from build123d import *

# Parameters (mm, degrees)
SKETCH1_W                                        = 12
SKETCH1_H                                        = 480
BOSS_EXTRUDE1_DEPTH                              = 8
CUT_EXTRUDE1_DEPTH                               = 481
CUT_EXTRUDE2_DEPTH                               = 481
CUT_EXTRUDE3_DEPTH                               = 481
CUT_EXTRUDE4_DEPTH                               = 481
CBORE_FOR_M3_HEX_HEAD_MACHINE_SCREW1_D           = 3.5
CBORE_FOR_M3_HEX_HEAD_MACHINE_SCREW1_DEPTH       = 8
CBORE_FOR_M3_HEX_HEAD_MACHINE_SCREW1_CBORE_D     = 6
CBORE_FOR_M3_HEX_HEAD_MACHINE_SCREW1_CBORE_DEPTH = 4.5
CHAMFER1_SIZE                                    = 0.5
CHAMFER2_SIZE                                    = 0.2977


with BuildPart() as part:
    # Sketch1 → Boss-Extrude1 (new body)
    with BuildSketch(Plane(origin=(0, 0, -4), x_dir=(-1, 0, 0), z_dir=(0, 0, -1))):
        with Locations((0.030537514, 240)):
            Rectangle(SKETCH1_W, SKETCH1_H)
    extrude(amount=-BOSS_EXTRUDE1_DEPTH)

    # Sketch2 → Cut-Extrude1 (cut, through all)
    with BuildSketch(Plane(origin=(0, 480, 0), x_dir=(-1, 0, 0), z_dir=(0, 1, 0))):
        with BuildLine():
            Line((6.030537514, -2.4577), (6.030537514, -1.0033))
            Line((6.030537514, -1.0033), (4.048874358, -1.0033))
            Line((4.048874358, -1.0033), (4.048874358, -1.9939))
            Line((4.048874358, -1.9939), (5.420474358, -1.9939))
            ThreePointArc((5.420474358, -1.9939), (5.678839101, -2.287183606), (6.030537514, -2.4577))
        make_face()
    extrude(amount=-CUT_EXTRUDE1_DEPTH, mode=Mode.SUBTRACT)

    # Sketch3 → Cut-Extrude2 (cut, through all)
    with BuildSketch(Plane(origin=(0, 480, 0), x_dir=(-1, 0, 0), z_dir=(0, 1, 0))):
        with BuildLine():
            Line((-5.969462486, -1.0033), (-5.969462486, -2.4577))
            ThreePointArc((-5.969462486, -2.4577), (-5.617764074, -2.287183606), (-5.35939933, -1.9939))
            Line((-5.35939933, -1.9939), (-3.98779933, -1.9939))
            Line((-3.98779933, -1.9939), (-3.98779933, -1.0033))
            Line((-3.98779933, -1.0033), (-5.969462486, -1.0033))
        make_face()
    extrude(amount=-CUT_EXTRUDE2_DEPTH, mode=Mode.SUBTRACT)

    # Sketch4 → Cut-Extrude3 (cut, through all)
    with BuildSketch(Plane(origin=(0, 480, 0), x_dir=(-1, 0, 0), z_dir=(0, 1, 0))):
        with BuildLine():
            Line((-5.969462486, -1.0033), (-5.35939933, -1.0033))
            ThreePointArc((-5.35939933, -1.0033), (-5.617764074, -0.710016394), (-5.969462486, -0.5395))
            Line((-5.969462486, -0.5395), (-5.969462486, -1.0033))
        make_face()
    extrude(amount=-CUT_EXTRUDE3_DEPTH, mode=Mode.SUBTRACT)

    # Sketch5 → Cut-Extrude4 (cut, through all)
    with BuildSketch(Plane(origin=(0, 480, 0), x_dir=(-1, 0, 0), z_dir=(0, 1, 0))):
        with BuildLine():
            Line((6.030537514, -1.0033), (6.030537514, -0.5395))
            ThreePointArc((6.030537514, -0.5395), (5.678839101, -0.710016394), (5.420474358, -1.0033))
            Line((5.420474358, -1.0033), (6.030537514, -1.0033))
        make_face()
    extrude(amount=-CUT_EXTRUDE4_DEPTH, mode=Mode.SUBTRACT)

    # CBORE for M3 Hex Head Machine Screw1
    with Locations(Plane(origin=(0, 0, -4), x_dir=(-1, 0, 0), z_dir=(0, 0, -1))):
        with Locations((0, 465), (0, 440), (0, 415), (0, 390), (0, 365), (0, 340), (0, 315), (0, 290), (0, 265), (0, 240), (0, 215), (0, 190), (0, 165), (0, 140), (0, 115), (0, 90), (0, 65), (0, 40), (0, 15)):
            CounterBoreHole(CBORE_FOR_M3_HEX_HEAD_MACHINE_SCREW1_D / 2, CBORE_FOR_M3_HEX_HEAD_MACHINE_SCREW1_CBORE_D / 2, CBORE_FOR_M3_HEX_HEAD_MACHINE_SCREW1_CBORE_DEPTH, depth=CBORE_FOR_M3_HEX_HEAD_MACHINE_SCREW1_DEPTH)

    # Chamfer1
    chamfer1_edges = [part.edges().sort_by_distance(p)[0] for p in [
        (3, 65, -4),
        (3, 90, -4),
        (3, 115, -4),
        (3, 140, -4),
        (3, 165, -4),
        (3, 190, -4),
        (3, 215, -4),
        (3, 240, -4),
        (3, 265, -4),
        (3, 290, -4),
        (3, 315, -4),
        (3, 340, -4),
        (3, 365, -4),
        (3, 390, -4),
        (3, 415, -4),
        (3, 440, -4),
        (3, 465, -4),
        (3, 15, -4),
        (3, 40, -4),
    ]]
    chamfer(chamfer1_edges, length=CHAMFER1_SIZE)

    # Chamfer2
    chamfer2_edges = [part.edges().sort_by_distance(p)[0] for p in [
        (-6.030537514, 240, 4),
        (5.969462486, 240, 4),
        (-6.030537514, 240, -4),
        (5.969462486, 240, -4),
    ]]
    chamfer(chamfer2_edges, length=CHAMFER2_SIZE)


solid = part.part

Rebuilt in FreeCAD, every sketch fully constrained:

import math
import FreeCAD as App
import Part
import Sketcher
from FreeCAD import Vector


def edges_at(feature, points):
    """Names of the edges that pass closest to the given points."""
    edges = feature.Shape.Edges
    near = lambda p: min(range(len(edges)), key=lambda i: edges[i].distToShape(Part.Vertex(*p))[0])
    return sorted({f"Edge{near(p) + 1}" for p in points})

doc = App.newDocument("Part")
body = doc.addObject("PartDesign::Body", "Body")

# Sketch on XY plane
sketch1 = body.newObject("Sketcher::SketchObject", "Sketch")
sketch1.AttachmentSupport = (doc.getObject("XY_Plane"), [""])
sketch1.MapMode = "FlatFace"
sketch1.AttachmentOffset = App.Placement(Vector(0, 0, -4), App.Rotation())
sketch1.addGeometry(Part.LineSegment(Vector(6, 480, 0), Vector(6, 0, 0)), False)
sketch1.addGeometry(Part.LineSegment(Vector(6, 0, 0), Vector(-6, 0, 0)), False)
sketch1.addGeometry(Part.LineSegment(Vector(-6, 0, 0), Vector(-6, 480, 0)), False)
sketch1.addGeometry(Part.LineSegment(Vector(-6, 480, 0), Vector(6, 480, 0)), False)
sketch1.addConstraint(Sketcher.Constraint("Coincident", 0, 2, 1, 1))
sketch1.addConstraint(Sketcher.Constraint("Coincident", 1, 2, 2, 1))
sketch1.addConstraint(Sketcher.Constraint("Coincident", 2, 2, 3, 1))
sketch1.addConstraint(Sketcher.Constraint("Coincident", 3, 2, 0, 1))
sketch1.addConstraint(Sketcher.Constraint("Vertical", 0))
sketch1.addConstraint(Sketcher.Constraint("Horizontal", 1))
sketch1.addConstraint(Sketcher.Constraint("Vertical", 2))
sketch1.addConstraint(Sketcher.Constraint("Horizontal", 3))
sketch1.addConstraint(Sketcher.Constraint("PointOnObject", 0, 2, -1))
sketch1.addConstraint(Sketcher.Constraint("DistanceX", 1, 2, 1, 1, 12.0))
sketch1.addConstraint(Sketcher.Constraint("DistanceY", 0, 2, 0, 1, 480.0))
sketch1.addConstraint(Sketcher.Constraint("DistanceX", -1, 1, 0, 2, 5.969462))
pad1 = body.newObject("PartDesign::Pad", "Pad")
pad1.Profile = sketch1
pad1.Length = 8

# Sketch on XZ plane
sketch2 = body.newObject("Sketcher::SketchObject", "Sketch001")
sketch2.AttachmentSupport = (doc.getObject("XZ_Plane"), [""])
sketch2.MapMode = "FlatFace"
sketch2.AttachmentOffset = App.Placement(Vector(0, 0, -480), App.Rotation())
sketch2.addGeometry(Part.LineSegment(Vector(-6, -2.5, 0), Vector(-6, -1, 0)), False)
sketch2.addGeometry(Part.LineSegment(Vector(-6, -1, 0), Vector(-4, -1, 0)), False)
sketch2.addGeometry(Part.LineSegment(Vector(-4, -1, 0), Vector(-4, -2, 0)), False)
sketch2.addGeometry(Part.LineSegment(Vector(-4, -2, 0), Vector(-5.4, -2, 0)), False)
sketch2.addGeometry(Part.ArcOfCircle(Part.Circle(Vector(-6.3, -1.5, 0), Vector(0, 0, 1), 1), math.radians(-76), math.radians(-30)), False)
sketch2.addConstraint(Sketcher.Constraint("Coincident", 0, 2, 1, 1))
sketch2.addConstraint(Sketcher.Constraint("Coincident", 1, 2, 2, 1))
sketch2.addConstraint(Sketcher.Constraint("Coincident", 2, 2, 3, 1))
sketch2.addConstraint(Sketcher.Constraint("Coincident", 3, 2, 4, 2))
sketch2.addConstraint(Sketcher.Constraint("Coincident", 4, 1, 0, 1))
sketch2.addConstraint(Sketcher.Constraint("Vertical", 0))
sketch2.addConstraint(Sketcher.Constraint("Horizontal", 1))
sketch2.addConstraint(Sketcher.Constraint("Vertical", 2))
sketch2.addConstraint(Sketcher.Constraint("Horizontal", 3))
sketch2.addConstraint(Sketcher.Constraint("Radius", 4, 0.9906))
sketch2.addConstraint(Sketcher.Constraint("DistanceX", 3, 2, 3, 1, 1.3716))
sketch2.addConstraint(Sketcher.Constraint("DistanceY", 0, 1, 0, 2, 1.4544))
sketch2.addConstraint(Sketcher.Constraint("DistanceY", 2, 2, 2, 1, 0.9906))
sketch2.addConstraint(Sketcher.Constraint("DistanceY", 4, 3, -1, 1, 1.4986))
sketch2.addConstraint(Sketcher.Constraint("DistanceY", 0, 2, -1, 1, 1.0033))
sketch2.addConstraint(Sketcher.Constraint("DistanceX", 4, 3, -1, 1, 6.278359))
pocket1 = body.newObject("PartDesign::Pocket", "Pocket")
pocket1.Profile = sketch2
pocket1.Type = "ThroughAll"
pocket1.Reversed = True

# Sketch on XZ plane
sketch3 = body.newObject("Sketcher::SketchObject", "Sketch002")
sketch3.AttachmentSupport = (doc.getObject("XZ_Plane"), [""])
sketch3.MapMode = "FlatFace"
sketch3.AttachmentOffset = App.Placement(Vector(0, 0, -480), App.Rotation())
sketch3.addGeometry(Part.LineSegment(Vector(6, -1, 0), Vector(6, -2.5, 0)), False)
sketch3.addGeometry(Part.ArcOfCircle(Part.Circle(Vector(6.2, -1.5, 0), Vector(0, 0, 1), 1), math.radians(-150), math.radians(-104)), False)
sketch3.addGeometry(Part.LineSegment(Vector(5.4, -2, 0), Vector(4, -2, 0)), False)
sketch3.addGeometry(Part.LineSegment(Vector(4, -2, 0), Vector(4, -1, 0)), False)
sketch3.addGeometry(Part.LineSegment(Vector(4, -1, 0), Vector(6, -1, 0)), False)
sketch3.addConstraint(Sketcher.Constraint("Coincident", 0, 2, 1, 2))
sketch3.addConstraint(Sketcher.Constraint("Coincident", 1, 1, 2, 1))
sketch3.addConstraint(Sketcher.Constraint("Coincident", 2, 2, 3, 1))
sketch3.addConstraint(Sketcher.Constraint("Coincident", 3, 2, 4, 1))
sketch3.addConstraint(Sketcher.Constraint("Coincident", 4, 2, 0, 1))
sketch3.addConstraint(Sketcher.Constraint("Vertical", 0))
sketch3.addConstraint(Sketcher.Constraint("Horizontal", 2))
sketch3.addConstraint(Sketcher.Constraint("Vertical", 3))
sketch3.addConstraint(Sketcher.Constraint("Horizontal", 4))
sketch3.addConstraint(Sketcher.Constraint("Radius", 1, 0.9906))
sketch3.addConstraint(Sketcher.Constraint("DistanceX", 2, 2, 2, 1, 1.3716))
sketch3.addConstraint(Sketcher.Constraint("DistanceY", 0, 2, 0, 1, 1.4544))
sketch3.addConstraint(Sketcher.Constraint("DistanceY", 3, 1, 3, 2, 0.9906))
sketch3.addConstraint(Sketcher.Constraint("DistanceY", 1, 3, -1, 1, 1.4986))
sketch3.addConstraint(Sketcher.Constraint("DistanceY", 0, 2, -1, 1, 2.4577))
sketch3.addConstraint(Sketcher.Constraint("DistanceX", -1, 1, 1, 1, 5.359399))
pocket2 = body.newObject("PartDesign::Pocket", "Pocket001")
pocket2.Profile = sketch3
pocket2.Type = "ThroughAll"
pocket2.Reversed = True

# Sketch on XZ plane
sketch4 = body.newObject("Sketcher::SketchObject", "Sketch003")
sketch4.AttachmentSupport = (doc.getObject("XZ_Plane"), [""])
sketch4.MapMode = "FlatFace"
sketch4.AttachmentOffset = App.Placement(Vector(0, 0, -480), App.Rotation())
sketch4.addGeometry(Part.LineSegment(Vector(5.97, -1, 0), Vector(5.36, -1, 0)), False)
sketch4.addGeometry(Part.ArcOfCircle(Part.Circle(Vector(6.22, -1.5, 0), Vector(0, 0, 1), 0.99), math.radians(104), math.radians(150)), False)
sketch4.addGeometry(Part.LineSegment(Vector(5.97, -0.54, 0), Vector(5.97, -1, 0)), False)
sketch4.addConstraint(Sketcher.Constraint("Coincident", 0, 2, 1, 2))
sketch4.addConstraint(Sketcher.Constraint("Coincident", 1, 1, 2, 1))
sketch4.addConstraint(Sketcher.Constraint("Coincident", 2, 2, 0, 1))
sketch4.addConstraint(Sketcher.Constraint("Horizontal", 0))
sketch4.addConstraint(Sketcher.Constraint("Vertical", 2))
sketch4.addConstraint(Sketcher.Constraint("Radius", 1, 0.9906))
sketch4.addConstraint(Sketcher.Constraint("DistanceY", 2, 2, 2, 1, 0.4638))
sketch4.addConstraint(Sketcher.Constraint("DistanceY", 1, 3, -1, 1, 1.4986))
sketch4.addConstraint(Sketcher.Constraint("DistanceX", -1, 1, 0, 2, 5.359399))
sketch4.addConstraint(Sketcher.Constraint("DistanceY", 0, 2, -1, 1, 1.0033))
pocket3 = body.newObject("PartDesign::Pocket", "Pocket002")
pocket3.Profile = sketch4
pocket3.Type = "ThroughAll"
pocket3.Reversed = True

# Sketch on XZ plane
sketch5 = body.newObject("Sketcher::SketchObject", "Sketch004")
sketch5.AttachmentSupport = (doc.getObject("XZ_Plane"), [""])
sketch5.MapMode = "FlatFace"
sketch5.AttachmentOffset = App.Placement(Vector(0, 0, -480), App.Rotation())
sketch5.addGeometry(Part.LineSegment(Vector(-6.03, -1, 0), Vector(-6.03, -0.54, 0)), False)
sketch5.addGeometry(Part.ArcOfCircle(Part.Circle(Vector(-6.28, -1.5, 0), Vector(0, 0, 1), 0.99), math.radians(30), math.radians(76)), False)
sketch5.addGeometry(Part.LineSegment(Vector(-5.42, -1, 0), Vector(-6.03, -1, 0)), False)
sketch5.addConstraint(Sketcher.Constraint("Coincident", 0, 2, 1, 2))
sketch5.addConstraint(Sketcher.Constraint("Coincident", 1, 1, 2, 1))
sketch5.addConstraint(Sketcher.Constraint("Coincident", 2, 2, 0, 1))
sketch5.addConstraint(Sketcher.Constraint("Vertical", 0))
sketch5.addConstraint(Sketcher.Constraint("Horizontal", 2))
sketch5.addConstraint(Sketcher.Constraint("Radius", 1, 0.9906))
sketch5.addConstraint(Sketcher.Constraint("DistanceY", 0, 1, 0, 2, 0.4638))
sketch5.addConstraint(Sketcher.Constraint("DistanceY", 1, 3, -1, 1, 1.4986))
sketch5.addConstraint(Sketcher.Constraint("DistanceY", 0, 2, -1, 1, 0.5395))
sketch5.addConstraint(Sketcher.Constraint("DistanceX", 1, 3, -1, 1, 6.278359))
pocket4 = body.newObject("PartDesign::Pocket", "Pocket003")
pocket4.Profile = sketch5
pocket4.Type = "ThroughAll"
pocket4.Reversed = True

# Sketch on XY plane
sketch6 = body.newObject("Sketcher::SketchObject", "Sketch005")
sketch6.AttachmentSupport = (doc.getObject("XY_Plane"), [""])
sketch6.MapMode = "FlatFace"
sketch6.AttachmentOffset = App.Placement(Vector(0, 0, -4), App.Rotation())
sketch6.addGeometry(Part.Circle(Vector(0, 465, 0), Vector(0, 0, 1), 1.8), False)
sketch6.addGeometry(Part.Circle(Vector(0, 440, 0), Vector(0, 0, 1), 1.8), False)
sketch6.addGeometry(Part.Circle(Vector(0, 415, 0), Vector(0, 0, 1), 1.8), False)
sketch6.addGeometry(Part.Circle(Vector(0, 390, 0), Vector(0, 0, 1), 1.8), False)
sketch6.addGeometry(Part.Circle(Vector(0, 365, 0), Vector(0, 0, 1), 1.8), False)
sketch6.addGeometry(Part.Circle(Vector(0, 340, 0), Vector(0, 0, 1), 1.8), False)
sketch6.addGeometry(Part.Circle(Vector(0, 315, 0), Vector(0, 0, 1), 1.8), False)
sketch6.addGeometry(Part.Circle(Vector(0, 290, 0), Vector(0, 0, 1), 1.8), False)
sketch6.addGeometry(Part.Circle(Vector(0, 265, 0), Vector(0, 0, 1), 1.8), False)
sketch6.addGeometry(Part.Circle(Vector(0, 240, 0), Vector(0, 0, 1), 1.8), False)
sketch6.addGeometry(Part.Circle(Vector(0, 215, 0), Vector(0, 0, 1), 1.8), False)
sketch6.addGeometry(Part.Circle(Vector(0, 190, 0), Vector(0, 0, 1), 1.8), False)
sketch6.addGeometry(Part.Circle(Vector(0, 165, 0), Vector(0, 0, 1), 1.8), False)
sketch6.addGeometry(Part.Circle(Vector(0, 140, 0), Vector(0, 0, 1), 1.8), False)
sketch6.addGeometry(Part.Circle(Vector(0, 115, 0), Vector(0, 0, 1), 1.8), False)
sketch6.addGeometry(Part.Circle(Vector(0, 90, 0), Vector(0, 0, 1), 1.8), False)
sketch6.addGeometry(Part.Circle(Vector(0, 65, 0), Vector(0, 0, 1), 1.8), False)
sketch6.addGeometry(Part.Circle(Vector(0, 40, 0), Vector(0, 0, 1), 1.8), False)
sketch6.addGeometry(Part.Circle(Vector(0, 15, 0), Vector(0, 0, 1), 1.8), False)
sketch6.addConstraint(Sketcher.Constraint("Equal", 0, 1))
sketch6.addConstraint(Sketcher.Constraint("Equal", 1, 2))
sketch6.addConstraint(Sketcher.Constraint("Equal", 2, 3))
sketch6.addConstraint(Sketcher.Constraint("Equal", 3, 4))
sketch6.addConstraint(Sketcher.Constraint("Equal", 4, 5))
sketch6.addConstraint(Sketcher.Constraint("Equal", 5, 6))
sketch6.addConstraint(Sketcher.Constraint("Equal", 6, 7))
sketch6.addConstraint(Sketcher.Constraint("Equal", 7, 8))
sketch6.addConstraint(Sketcher.Constraint("Equal", 8, 9))
sketch6.addConstraint(Sketcher.Constraint("Equal", 9, 10))
sketch6.addConstraint(Sketcher.Constraint("Equal", 10, 11))
sketch6.addConstraint(Sketcher.Constraint("Equal", 11, 12))
sketch6.addConstraint(Sketcher.Constraint("Equal", 12, 13))
sketch6.addConstraint(Sketcher.Constraint("Equal", 13, 14))
sketch6.addConstraint(Sketcher.Constraint("Equal", 14, 15))
sketch6.addConstraint(Sketcher.Constraint("Equal", 15, 16))
sketch6.addConstraint(Sketcher.Constraint("Equal", 16, 17))
sketch6.addConstraint(Sketcher.Constraint("Equal", 17, 18))
sketch6.addConstraint(Sketcher.Constraint("PointOnObject", 0, 3, -2))
sketch6.addConstraint(Sketcher.Constraint("PointOnObject", 1, 3, -2))
sketch6.addConstraint(Sketcher.Constraint("PointOnObject", 2, 3, -2))
sketch6.addConstraint(Sketcher.Constraint("PointOnObject", 3, 3, -2))
sketch6.addConstraint(Sketcher.Constraint("PointOnObject", 4, 3, -2))
sketch6.addConstraint(Sketcher.Constraint("PointOnObject", 5, 3, -2))
sketch6.addConstraint(Sketcher.Constraint("PointOnObject", 6, 3, -2))
sketch6.addConstraint(Sketcher.Constraint("PointOnObject", 7, 3, -2))
sketch6.addConstraint(Sketcher.Constraint("PointOnObject", 8, 3, -2))
sketch6.addConstraint(Sketcher.Constraint("PointOnObject", 9, 3, -2))
sketch6.addConstraint(Sketcher.Constraint("PointOnObject", 10, 3, -2))
sketch6.addConstraint(Sketcher.Constraint("PointOnObject", 11, 3, -2))
sketch6.addConstraint(Sketcher.Constraint("PointOnObject", 12, 3, -2))
sketch6.addConstraint(Sketcher.Constraint("PointOnObject", 13, 3, -2))
sketch6.addConstraint(Sketcher.Constraint("PointOnObject", 14, 3, -2))
sketch6.addConstraint(Sketcher.Constraint("PointOnObject", 15, 3, -2))
sketch6.addConstraint(Sketcher.Constraint("PointOnObject", 16, 3, -2))
sketch6.addConstraint(Sketcher.Constraint("PointOnObject", 17, 3, -2))
sketch6.addConstraint(Sketcher.Constraint("PointOnObject", 18, 3, -2))
sketch6.addConstraint(Sketcher.Constraint("Diameter", 0, 3.5))
sketch6.addConstraint(Sketcher.Constraint("DistanceY", -1, 1, 0, 3, 465.0))
sketch6.addConstraint(Sketcher.Constraint("DistanceY", -1, 1, 1, 3, 440.0))
sketch6.addConstraint(Sketcher.Constraint("DistanceY", -1, 1, 2, 3, 415.0))
sketch6.addConstraint(Sketcher.Constraint("DistanceY", -1, 1, 3, 3, 390.0))
sketch6.addConstraint(Sketcher.Constraint("DistanceY", -1, 1, 4, 3, 365.0))
sketch6.addConstraint(Sketcher.Constraint("DistanceY", -1, 1, 5, 3, 340.0))
sketch6.addConstraint(Sketcher.Constraint("DistanceY", -1, 1, 6, 3, 315.0))
sketch6.addConstraint(Sketcher.Constraint("DistanceY", -1, 1, 7, 3, 290.0))
sketch6.addConstraint(Sketcher.Constraint("DistanceY", -1, 1, 8, 3, 265.0))
sketch6.addConstraint(Sketcher.Constraint("DistanceY", -1, 1, 9, 3, 240.0))
sketch6.addConstraint(Sketcher.Constraint("DistanceY", -1, 1, 10, 3, 215.0))
sketch6.addConstraint(Sketcher.Constraint("DistanceY", -1, 1, 11, 3, 190.0))
sketch6.addConstraint(Sketcher.Constraint("DistanceY", -1, 1, 12, 3, 165.0))
sketch6.addConstraint(Sketcher.Constraint("DistanceY", -1, 1, 13, 3, 140.0))
sketch6.addConstraint(Sketcher.Constraint("DistanceY", -1, 1, 14, 3, 115.0))
sketch6.addConstraint(Sketcher.Constraint("DistanceY", -1, 1, 15, 3, 90.0))
sketch6.addConstraint(Sketcher.Constraint("DistanceY", -1, 1, 16, 3, 65.0))
sketch6.addConstraint(Sketcher.Constraint("DistanceY", -1, 1, 17, 3, 40.0))
sketch6.addConstraint(Sketcher.Constraint("DistanceY", -1, 1, 18, 3, 15.0))
doc.recompute()
hole = body.newObject("PartDesign::Hole", "Hole")
hole.Profile = sketch6
hole.ThreadType = "None"
hole.Diameter = 3.5
hole.DepthType = "Dimension"
hole.Depth = 8
hole.DrillPoint = "Flat"
hole.HoleCutType = "Counterbore"
hole.HoleCutDiameter = 6
hole.HoleCutDepth = 4.5
hole.Reversed = True
doc.recompute()

chamfer = body.newObject("PartDesign::Chamfer", "Chamfer")
chamfer.Base = (hole, edges_at(hole, [
    (3, 65, -4),
    (3, 90, -4),
    (3, 115, -4),
    (3, 140, -4),
    (3, 165, -4),
    (3, 190, -4),
    (3, 215, -4),
    (3, 240, -4),
    (3, 265, -4),
    (3, 290, -4),
    (3, 315, -4),
    (3, 340, -4),
    (3, 365, -4),
    (3, 390, -4),
    (3, 415, -4),
    (3, 440, -4),
    (3, 465, -4),
    (3, 15, -4),
    (3, 40, -4),
]))
chamfer.Size = 0.5
doc.recompute()

chamfer2 = body.newObject("PartDesign::Chamfer", "Chamfer001")
chamfer2.Base = (chamfer, edges_at(chamfer, [
    (-6.031, 240, 4),
    (5.969, 240, 4),
    (-6.031, 240, -4),
    (5.969, 240, -4),
]))
chamfer2.Size = 0.2977

doc.recompute()
